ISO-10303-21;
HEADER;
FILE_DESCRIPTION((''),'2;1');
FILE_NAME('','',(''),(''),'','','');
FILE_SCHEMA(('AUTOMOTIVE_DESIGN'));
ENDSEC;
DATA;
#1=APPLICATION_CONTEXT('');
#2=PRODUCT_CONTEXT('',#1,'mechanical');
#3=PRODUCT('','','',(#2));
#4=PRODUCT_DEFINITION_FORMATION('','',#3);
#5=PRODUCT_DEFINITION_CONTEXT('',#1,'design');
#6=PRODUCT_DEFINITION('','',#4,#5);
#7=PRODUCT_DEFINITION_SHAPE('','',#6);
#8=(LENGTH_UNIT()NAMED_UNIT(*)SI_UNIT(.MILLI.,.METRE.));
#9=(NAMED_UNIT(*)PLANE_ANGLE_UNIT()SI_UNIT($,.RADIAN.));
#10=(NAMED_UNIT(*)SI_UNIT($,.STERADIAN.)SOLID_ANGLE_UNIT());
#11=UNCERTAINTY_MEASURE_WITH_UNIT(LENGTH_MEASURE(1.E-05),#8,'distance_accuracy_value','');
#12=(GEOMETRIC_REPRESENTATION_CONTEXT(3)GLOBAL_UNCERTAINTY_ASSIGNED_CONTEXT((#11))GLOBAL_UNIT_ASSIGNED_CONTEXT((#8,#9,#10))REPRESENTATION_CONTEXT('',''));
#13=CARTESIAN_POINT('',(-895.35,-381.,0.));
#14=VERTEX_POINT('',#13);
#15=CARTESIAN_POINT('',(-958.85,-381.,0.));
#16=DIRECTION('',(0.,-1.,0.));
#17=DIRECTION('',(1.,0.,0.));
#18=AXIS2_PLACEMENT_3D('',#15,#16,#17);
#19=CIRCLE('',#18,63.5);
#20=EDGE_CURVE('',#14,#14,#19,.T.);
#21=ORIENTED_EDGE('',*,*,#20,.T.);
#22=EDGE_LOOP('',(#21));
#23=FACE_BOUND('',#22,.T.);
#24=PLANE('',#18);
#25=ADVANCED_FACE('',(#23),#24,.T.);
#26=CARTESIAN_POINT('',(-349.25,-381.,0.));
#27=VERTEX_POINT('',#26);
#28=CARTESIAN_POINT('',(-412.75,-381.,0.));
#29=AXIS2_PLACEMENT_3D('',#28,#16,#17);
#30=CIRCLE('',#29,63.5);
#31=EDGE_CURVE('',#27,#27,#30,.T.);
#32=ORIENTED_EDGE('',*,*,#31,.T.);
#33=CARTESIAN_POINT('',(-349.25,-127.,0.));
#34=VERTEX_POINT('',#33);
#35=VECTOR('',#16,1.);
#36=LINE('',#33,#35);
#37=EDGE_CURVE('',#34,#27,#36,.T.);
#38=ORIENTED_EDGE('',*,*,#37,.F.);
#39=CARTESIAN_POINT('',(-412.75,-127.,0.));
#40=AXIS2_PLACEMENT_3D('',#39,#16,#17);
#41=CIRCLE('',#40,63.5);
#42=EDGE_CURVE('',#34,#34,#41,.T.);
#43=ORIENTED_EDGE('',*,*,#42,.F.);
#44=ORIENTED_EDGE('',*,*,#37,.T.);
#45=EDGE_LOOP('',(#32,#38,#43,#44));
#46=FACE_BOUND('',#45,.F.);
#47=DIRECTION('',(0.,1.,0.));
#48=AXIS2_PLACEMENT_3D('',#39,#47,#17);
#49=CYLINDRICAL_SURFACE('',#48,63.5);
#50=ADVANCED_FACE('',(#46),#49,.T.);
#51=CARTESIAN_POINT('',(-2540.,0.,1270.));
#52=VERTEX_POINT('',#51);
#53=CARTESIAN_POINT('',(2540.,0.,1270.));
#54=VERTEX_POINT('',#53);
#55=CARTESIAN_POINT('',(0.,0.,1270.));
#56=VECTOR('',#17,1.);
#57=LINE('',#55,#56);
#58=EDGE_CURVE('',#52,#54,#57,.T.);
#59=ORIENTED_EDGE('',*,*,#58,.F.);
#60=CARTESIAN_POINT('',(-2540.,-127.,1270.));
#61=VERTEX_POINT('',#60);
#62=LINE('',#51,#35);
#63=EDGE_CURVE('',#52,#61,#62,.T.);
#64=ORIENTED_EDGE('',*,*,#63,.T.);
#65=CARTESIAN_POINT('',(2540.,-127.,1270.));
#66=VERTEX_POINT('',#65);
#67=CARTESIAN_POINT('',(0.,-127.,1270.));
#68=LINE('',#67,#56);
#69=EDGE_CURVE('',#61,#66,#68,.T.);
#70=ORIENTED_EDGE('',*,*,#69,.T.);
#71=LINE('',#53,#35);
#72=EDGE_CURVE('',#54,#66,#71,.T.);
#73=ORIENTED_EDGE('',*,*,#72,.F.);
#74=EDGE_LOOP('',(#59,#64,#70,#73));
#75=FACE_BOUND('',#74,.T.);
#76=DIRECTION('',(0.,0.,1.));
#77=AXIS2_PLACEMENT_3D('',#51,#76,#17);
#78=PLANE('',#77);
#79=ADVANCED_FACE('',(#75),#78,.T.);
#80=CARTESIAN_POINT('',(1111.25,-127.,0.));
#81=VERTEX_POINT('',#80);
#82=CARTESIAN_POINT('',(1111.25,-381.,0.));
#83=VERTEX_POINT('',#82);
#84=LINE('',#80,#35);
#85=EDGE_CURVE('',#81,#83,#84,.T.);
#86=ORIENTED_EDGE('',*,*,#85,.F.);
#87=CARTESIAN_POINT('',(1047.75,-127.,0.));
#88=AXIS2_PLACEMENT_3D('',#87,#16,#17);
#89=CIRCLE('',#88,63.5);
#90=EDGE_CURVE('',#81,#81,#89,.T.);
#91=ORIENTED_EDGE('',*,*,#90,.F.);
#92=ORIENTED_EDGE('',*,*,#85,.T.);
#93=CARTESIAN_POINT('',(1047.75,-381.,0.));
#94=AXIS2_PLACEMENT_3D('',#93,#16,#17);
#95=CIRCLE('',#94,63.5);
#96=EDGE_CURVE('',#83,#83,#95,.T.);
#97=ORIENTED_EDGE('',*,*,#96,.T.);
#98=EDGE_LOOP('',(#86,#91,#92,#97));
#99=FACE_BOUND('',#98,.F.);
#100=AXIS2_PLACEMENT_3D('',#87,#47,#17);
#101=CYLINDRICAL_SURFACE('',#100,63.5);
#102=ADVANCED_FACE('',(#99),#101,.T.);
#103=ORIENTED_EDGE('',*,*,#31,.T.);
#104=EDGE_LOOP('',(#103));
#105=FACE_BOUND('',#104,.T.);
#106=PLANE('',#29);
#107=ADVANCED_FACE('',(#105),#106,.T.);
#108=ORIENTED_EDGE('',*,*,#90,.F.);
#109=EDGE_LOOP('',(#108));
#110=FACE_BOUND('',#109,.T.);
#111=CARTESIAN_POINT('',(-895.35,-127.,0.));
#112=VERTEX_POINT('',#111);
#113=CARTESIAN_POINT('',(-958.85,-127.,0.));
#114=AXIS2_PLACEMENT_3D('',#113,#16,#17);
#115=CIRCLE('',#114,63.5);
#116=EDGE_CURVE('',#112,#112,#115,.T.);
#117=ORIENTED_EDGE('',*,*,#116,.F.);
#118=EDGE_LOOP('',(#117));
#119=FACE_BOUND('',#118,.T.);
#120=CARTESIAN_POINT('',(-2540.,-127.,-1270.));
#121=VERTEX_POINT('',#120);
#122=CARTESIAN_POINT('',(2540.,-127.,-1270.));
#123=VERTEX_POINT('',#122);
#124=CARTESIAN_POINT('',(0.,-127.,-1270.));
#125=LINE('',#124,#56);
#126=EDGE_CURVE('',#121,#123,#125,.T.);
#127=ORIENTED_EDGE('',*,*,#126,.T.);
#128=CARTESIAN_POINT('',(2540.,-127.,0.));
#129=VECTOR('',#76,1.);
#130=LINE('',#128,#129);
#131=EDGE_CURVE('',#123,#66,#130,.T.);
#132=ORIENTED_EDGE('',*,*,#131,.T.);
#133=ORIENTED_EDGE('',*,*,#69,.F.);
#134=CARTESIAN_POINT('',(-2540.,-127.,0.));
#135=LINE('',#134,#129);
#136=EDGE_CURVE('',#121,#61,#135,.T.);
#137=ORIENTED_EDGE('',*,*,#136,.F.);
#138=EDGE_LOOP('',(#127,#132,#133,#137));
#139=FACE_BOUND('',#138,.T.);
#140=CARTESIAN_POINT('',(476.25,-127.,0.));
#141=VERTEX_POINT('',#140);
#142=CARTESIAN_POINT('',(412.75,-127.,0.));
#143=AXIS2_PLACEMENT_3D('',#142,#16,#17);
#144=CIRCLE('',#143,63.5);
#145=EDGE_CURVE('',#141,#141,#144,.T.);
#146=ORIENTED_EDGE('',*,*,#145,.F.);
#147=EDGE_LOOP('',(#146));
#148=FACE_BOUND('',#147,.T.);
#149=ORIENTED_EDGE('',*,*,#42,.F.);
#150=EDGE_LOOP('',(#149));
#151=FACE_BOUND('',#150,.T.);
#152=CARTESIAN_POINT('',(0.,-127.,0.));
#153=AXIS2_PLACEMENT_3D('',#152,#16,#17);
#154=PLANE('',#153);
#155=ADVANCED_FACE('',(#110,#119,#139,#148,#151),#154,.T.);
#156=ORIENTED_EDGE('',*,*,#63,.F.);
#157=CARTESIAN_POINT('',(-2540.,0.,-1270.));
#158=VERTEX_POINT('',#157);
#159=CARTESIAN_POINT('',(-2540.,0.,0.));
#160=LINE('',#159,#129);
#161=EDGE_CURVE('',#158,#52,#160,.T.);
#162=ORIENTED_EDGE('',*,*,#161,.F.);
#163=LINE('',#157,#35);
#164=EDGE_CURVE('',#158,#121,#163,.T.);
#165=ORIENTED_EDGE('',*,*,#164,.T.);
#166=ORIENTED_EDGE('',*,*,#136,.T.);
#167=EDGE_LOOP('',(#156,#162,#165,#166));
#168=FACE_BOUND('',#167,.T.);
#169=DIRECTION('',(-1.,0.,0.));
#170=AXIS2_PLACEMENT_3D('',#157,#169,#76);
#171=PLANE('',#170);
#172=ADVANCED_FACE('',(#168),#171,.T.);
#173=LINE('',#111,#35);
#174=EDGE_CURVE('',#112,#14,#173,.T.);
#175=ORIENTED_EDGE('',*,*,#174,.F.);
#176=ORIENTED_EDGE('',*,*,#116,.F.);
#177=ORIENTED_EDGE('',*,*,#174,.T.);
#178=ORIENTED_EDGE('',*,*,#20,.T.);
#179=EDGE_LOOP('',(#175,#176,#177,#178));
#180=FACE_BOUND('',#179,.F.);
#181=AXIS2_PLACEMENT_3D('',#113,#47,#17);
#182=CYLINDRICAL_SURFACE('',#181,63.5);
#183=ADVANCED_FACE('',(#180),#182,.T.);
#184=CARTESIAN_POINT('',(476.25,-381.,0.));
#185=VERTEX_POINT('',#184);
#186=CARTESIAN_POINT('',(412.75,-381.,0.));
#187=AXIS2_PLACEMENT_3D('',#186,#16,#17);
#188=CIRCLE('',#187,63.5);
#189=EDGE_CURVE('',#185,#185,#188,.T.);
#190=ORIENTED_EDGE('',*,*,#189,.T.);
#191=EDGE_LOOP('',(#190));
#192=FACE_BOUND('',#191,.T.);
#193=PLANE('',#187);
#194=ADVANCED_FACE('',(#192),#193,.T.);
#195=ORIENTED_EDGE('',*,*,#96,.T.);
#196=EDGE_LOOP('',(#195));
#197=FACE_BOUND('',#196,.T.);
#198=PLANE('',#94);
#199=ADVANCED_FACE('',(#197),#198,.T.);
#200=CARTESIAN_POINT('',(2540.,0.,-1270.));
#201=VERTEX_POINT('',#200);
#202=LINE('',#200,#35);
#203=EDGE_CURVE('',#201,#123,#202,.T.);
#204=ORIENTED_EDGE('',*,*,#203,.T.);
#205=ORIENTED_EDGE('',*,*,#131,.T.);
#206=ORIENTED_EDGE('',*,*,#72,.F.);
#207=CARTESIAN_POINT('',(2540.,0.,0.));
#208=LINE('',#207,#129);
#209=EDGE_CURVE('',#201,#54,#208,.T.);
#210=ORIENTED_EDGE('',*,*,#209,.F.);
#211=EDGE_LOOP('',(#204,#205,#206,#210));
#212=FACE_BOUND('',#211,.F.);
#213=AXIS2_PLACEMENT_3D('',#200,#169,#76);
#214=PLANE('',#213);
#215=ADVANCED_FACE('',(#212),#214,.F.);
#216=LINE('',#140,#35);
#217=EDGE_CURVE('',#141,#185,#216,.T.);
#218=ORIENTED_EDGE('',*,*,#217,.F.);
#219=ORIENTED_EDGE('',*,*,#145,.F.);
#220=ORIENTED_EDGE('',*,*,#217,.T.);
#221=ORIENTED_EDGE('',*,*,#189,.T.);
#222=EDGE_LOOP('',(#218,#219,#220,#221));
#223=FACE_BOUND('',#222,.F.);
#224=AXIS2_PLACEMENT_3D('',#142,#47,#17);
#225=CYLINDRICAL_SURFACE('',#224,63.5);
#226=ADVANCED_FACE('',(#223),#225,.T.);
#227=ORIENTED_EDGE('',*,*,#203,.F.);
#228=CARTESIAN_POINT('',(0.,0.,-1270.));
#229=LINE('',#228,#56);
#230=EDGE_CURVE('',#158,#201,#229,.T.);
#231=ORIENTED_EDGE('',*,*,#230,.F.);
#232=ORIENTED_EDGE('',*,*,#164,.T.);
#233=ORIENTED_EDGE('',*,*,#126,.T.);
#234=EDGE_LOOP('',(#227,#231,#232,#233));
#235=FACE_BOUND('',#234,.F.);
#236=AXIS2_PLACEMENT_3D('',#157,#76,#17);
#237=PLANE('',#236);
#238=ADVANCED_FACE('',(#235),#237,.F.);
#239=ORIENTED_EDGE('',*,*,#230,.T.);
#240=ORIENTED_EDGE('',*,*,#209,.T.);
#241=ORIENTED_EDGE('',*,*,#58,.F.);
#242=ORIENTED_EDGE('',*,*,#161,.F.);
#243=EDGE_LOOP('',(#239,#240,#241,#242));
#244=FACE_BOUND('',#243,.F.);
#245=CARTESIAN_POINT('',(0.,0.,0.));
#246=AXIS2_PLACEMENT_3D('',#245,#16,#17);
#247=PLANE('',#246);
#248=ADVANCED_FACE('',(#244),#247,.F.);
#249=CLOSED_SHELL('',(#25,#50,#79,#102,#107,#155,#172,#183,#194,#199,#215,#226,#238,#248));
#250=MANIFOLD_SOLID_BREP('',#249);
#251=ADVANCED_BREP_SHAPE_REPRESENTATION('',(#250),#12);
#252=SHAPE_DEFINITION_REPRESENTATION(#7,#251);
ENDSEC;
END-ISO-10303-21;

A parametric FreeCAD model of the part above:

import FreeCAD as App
import Part
import Sketcher
from FreeCAD import Vector
Q = App.Units.Quantity


def add_polygon(sketch, points):
    """Adds a closed chain of lines whose ends are joined by coincident constraints."""
    first, n = sketch.GeometryCount, len(points)
    for a, b in zip(points, points[1:] + points[:1]):
        sketch.addGeometry(Part.LineSegment(App.Vector(*a, 0), App.Vector(*b, 0)), False)
    for i in range(n):
        sketch.addConstraint(Sketcher.Constraint("Coincident", first + i, 2, first + (i + 1) % n, 1))

doc = App.newDocument("Part")
body = doc.addObject("PartDesign::Body", "Body")

# Sketch on XZ plane
sketch1 = body.newObject("Sketcher::SketchObject", "Sketch")
sketch1.AttachmentSupport = (doc.getObject("XZ_Plane"), [""])
sketch1.MapMode = "FlatFace"
add_polygon(sketch1, [(-2540, 1270), (-2540, -1270), (2540, -1270), (2540, 1270)])  # lines 0-3
sketch1.addConstraint([
    Sketcher.Constraint("Vertical", 0),
    Sketcher.Constraint("Horizontal", 1),
    Sketcher.Constraint("Vertical", 2),
    Sketcher.Constraint("Horizontal", 3),
    Sketcher.Constraint("Symmetric", 0, 2, 2, 2, -1, 1),
    Sketcher.Constraint("DistanceX", 1, 1, 1, 2, Q("200 in")),
    Sketcher.Constraint("DistanceY", 0, 2, 0, 1, Q("100 in")),
])
pad1 = body.newObject("PartDesign::Pad", "Pad")
pad1.Profile = sketch1
pad1.Length = Q("5 in")

# Sketch on XZ plane
sketch2 = body.newObject("Sketcher::SketchObject", "Sketch001")
sketch2.AttachmentSupport = (doc.getObject("XZ_Plane"), [""])
sketch2.MapMode = "FlatFace"
sketch2.AttachmentOffset = App.Placement(Vector(0, 0, 5 * 25.4), App.Rotation())
sketch2.addGeometry([
    Part.Circle(Vector(-959, 0, 0), Vector(0, 0, 1), 64),
    Part.Circle(Vector(-413, 0, 0), Vector(0, 0, 1), 64),
    Part.Circle(Vector(413, 0, 0), Vector(0, 0, 1), 64),
    Part.Circle(Vector(1048, 0, 0), Vector(0, 0, 1), 64),
], False)
sketch2.addConstraint([
    Sketcher.Constraint("Equal", 0, 1),
    Sketcher.Constraint("Equal", 1, 2),
    Sketcher.Constraint("Equal", 2, 3),
    Sketcher.Constraint("Symmetric", 1, 3, 2, 3, -1, 1),
    Sketcher.Constraint("PointOnObject", 0, 3, -1),
    Sketcher.Constraint("PointOnObject", 1, 3, -1),
    Sketcher.Constraint("PointOnObject", 3, 3, -1),
    Sketcher.Constraint("Diameter", 0, Q("5 in")),
    Sketcher.Constraint("DistanceX", 0, 3, 2, 3, Q("54 in")),
    Sketcher.Constraint("DistanceX", 2, 3, 3, 3, Q("25 in")),
    Sketcher.Constraint("DistanceX", 0, 3, 1, 3, Q("21.5 in")),
])
pad2 = body.newObject("PartDesign::Pad", "Pad001")
pad2.Profile = sketch2
pad2.Length = Q("10 in")

doc.recompute()
